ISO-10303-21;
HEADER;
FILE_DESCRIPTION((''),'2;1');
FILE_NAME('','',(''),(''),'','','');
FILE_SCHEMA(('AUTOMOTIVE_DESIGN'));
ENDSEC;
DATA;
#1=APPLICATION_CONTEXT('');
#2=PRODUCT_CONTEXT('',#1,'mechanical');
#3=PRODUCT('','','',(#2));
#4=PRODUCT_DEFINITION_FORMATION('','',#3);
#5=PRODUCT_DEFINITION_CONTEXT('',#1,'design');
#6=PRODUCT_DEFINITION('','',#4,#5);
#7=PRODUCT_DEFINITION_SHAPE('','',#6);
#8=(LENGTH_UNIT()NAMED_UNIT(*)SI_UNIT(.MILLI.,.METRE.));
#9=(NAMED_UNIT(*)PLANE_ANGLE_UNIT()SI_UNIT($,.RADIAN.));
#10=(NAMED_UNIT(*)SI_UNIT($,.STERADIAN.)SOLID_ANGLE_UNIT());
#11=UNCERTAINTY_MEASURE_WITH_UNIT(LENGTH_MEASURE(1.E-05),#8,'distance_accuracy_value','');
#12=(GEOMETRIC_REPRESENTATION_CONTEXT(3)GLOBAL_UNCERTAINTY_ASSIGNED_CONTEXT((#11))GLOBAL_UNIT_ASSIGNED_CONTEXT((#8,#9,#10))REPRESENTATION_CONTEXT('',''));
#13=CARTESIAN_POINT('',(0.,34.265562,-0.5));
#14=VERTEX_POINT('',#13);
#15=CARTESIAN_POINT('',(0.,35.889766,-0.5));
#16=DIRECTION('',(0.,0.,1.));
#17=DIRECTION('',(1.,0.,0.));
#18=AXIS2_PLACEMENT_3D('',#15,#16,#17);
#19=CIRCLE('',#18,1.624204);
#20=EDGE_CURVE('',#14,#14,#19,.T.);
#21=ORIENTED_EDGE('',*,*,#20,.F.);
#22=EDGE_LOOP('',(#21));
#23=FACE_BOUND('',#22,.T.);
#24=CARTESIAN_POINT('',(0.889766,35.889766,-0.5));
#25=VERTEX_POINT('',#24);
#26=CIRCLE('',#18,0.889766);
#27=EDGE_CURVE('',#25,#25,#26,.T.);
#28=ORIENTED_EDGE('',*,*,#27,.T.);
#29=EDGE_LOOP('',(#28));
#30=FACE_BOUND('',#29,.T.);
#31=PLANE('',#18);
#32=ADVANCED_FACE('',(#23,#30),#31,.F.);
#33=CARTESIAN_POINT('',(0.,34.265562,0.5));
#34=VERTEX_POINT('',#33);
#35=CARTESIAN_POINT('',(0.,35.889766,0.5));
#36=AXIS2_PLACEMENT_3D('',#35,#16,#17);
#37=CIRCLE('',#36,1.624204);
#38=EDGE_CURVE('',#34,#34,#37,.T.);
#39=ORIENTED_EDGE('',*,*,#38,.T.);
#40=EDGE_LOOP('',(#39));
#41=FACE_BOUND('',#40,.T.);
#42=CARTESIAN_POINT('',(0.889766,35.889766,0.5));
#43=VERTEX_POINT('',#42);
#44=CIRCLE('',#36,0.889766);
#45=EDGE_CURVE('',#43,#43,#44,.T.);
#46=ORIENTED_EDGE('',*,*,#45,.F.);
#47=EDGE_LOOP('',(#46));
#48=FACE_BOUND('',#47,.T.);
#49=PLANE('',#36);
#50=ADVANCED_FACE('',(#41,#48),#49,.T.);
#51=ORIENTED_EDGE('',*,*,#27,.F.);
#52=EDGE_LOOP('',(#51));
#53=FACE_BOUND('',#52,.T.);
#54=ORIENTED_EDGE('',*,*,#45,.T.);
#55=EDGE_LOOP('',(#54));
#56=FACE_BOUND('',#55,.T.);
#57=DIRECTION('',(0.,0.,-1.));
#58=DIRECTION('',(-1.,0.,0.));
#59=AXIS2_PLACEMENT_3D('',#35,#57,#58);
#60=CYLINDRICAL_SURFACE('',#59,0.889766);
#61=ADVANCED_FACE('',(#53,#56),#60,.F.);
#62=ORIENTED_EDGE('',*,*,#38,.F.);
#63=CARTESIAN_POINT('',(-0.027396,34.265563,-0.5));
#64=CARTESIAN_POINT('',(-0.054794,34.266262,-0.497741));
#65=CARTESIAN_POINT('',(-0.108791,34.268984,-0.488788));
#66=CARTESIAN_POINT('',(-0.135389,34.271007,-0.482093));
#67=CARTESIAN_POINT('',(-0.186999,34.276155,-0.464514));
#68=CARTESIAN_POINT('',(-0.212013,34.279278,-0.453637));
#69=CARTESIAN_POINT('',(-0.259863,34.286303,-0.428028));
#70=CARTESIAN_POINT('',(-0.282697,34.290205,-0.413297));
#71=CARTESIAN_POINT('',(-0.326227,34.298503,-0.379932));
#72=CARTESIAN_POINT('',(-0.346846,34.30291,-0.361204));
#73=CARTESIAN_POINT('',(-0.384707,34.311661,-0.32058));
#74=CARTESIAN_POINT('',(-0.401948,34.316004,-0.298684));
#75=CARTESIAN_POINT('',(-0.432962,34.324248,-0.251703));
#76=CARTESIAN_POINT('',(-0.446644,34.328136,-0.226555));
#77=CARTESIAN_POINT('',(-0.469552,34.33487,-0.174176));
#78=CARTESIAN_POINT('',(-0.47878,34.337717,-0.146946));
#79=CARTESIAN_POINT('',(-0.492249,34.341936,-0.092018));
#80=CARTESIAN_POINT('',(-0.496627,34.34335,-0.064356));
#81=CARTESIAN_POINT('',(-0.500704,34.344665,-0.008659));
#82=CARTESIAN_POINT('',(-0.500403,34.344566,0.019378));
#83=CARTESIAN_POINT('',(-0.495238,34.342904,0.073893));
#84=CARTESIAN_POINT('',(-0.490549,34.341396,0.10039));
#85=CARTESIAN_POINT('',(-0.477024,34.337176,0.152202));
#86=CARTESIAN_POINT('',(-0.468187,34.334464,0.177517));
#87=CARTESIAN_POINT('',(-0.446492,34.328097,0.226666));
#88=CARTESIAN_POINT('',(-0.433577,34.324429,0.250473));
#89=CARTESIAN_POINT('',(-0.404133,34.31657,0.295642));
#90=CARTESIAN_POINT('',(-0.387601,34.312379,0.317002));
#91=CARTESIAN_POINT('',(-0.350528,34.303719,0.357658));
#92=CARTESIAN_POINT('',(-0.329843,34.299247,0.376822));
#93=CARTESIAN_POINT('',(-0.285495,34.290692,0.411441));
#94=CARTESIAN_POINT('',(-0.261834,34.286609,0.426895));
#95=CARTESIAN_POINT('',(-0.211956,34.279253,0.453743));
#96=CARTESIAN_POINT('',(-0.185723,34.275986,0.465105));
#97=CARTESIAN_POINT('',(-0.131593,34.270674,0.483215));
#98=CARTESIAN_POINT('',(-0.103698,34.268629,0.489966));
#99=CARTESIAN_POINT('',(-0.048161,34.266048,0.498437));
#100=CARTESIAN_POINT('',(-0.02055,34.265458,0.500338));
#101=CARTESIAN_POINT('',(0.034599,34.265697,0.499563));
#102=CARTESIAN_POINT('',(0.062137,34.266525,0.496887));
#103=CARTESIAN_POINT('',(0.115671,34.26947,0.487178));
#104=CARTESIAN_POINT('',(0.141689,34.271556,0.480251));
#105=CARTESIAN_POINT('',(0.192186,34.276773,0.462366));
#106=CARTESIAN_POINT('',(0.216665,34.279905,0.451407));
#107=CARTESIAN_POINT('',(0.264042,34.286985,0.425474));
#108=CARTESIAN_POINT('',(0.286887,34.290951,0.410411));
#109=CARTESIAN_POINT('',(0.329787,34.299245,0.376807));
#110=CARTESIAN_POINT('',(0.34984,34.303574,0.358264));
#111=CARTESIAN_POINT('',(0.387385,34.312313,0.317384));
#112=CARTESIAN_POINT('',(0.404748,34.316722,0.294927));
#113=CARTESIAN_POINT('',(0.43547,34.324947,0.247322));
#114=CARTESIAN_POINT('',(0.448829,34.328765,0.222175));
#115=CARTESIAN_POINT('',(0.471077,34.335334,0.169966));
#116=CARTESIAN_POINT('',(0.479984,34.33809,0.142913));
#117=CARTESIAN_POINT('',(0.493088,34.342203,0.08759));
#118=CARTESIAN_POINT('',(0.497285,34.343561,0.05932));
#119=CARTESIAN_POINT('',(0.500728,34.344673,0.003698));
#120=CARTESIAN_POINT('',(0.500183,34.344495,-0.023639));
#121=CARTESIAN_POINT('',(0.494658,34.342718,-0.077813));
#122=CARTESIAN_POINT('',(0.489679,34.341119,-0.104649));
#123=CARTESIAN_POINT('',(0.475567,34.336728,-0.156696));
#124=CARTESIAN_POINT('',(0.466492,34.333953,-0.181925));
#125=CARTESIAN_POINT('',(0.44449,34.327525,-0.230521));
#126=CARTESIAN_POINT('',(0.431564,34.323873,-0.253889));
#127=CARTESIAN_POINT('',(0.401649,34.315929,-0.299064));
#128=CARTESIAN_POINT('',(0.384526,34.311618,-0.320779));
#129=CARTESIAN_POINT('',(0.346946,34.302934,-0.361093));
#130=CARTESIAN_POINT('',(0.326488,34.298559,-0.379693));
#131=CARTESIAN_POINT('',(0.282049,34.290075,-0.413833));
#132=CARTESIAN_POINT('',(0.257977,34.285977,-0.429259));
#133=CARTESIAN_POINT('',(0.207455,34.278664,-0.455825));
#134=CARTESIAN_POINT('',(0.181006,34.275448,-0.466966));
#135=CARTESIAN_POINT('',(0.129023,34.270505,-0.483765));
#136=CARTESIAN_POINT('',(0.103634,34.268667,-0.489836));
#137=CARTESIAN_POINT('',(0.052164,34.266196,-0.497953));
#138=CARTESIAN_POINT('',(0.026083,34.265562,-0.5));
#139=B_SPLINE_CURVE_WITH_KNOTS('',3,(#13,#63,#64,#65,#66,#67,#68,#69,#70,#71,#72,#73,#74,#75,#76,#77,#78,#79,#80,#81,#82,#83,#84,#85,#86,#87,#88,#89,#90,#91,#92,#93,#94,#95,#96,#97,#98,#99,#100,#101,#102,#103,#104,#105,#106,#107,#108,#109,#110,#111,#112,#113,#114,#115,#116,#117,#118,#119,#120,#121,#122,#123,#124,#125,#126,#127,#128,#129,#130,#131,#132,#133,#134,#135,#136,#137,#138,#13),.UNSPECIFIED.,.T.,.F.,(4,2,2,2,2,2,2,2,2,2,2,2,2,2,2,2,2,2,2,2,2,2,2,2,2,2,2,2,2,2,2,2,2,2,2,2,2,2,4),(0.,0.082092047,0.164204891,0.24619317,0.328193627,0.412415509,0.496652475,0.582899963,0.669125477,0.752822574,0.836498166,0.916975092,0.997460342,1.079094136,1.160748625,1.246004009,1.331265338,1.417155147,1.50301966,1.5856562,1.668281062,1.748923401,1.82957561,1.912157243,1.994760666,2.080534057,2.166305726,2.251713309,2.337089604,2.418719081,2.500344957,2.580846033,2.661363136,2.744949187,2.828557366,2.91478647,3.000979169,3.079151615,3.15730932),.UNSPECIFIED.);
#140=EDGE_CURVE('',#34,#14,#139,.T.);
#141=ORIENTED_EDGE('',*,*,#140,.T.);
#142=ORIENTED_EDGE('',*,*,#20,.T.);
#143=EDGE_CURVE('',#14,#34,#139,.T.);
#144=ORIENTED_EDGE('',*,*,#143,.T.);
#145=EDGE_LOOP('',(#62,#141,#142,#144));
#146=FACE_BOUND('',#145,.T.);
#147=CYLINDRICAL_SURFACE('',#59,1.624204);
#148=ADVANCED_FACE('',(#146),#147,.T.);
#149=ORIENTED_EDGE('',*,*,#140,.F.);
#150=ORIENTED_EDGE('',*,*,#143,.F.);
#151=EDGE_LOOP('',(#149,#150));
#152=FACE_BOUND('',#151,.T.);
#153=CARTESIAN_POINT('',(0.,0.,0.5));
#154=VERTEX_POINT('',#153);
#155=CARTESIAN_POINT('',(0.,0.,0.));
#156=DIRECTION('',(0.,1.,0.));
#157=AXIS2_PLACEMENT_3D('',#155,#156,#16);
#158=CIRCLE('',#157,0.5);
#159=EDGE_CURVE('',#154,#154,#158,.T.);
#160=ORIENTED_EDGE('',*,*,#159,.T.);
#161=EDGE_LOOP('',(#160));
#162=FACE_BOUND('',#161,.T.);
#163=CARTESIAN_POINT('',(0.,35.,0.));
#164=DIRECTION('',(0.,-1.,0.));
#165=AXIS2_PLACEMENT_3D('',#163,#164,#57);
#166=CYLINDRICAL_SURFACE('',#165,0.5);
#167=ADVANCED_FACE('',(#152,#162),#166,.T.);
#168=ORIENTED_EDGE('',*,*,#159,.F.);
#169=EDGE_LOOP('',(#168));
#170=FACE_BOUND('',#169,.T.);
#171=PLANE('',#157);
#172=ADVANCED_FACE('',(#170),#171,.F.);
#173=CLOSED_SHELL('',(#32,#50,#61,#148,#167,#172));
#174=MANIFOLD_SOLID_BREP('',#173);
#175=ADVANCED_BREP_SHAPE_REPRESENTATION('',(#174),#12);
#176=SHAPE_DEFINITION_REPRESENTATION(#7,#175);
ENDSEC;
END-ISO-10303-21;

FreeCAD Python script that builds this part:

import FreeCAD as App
import Part
import Sketcher
Q = App.Units.Quantity

doc = App.newDocument("Part")
body = doc.addObject("PartDesign::Body", "Body")

# Sketch on XZ plane
sketch1 = body.newObject("Sketcher::SketchObject", "Sketch")
sketch1.AttachmentSupport = (doc.getObject("XZ_Plane"), [""])
sketch1.MapMode = "FlatFace"
sketch1.addGeometry(Part.Circle(App.Vector(0, 0, 0), App.Vector(0, 0, 1), 0.5), False)
sketch1.addConstraint(Sketcher.Constraint("Coincident", 0, 3, -1, 1))
sketch1.addConstraint(Sketcher.Constraint("Diameter", 0, Q("1 mm")))
pad1 = body.newObject("PartDesign::Pad", "Pad")
pad1.Profile = sketch1
pad1.Length = 35
pad1.Reversed = True

# Sketch on XY plane
sketch2 = body.newObject("Sketcher::SketchObject", "Sketch001")
sketch2.AttachmentSupport = (doc.getObject("XY_Plane"), [""])
sketch2.MapMode = "FlatFace"
sketch2.addGeometry(Part.Circle(App.Vector(0, 35.9, 0), App.Vector(0, 0, 1), 1.6), False)
sketch2.addGeometry(Part.Circle(App.Vector(0, 35.9, 0), App.Vector(0, 0, 1), 0.9), False)
sketch2.addConstraint(Sketcher.Constraint("Coincident", 1, 3, 0, 3))
sketch2.addConstraint(Sketcher.Constraint("PointOnObject", 0, 3, -2))
sketch2.addConstraint(Sketcher.Constraint("Diameter", 0, Q("3.248407 mm")))
sketch2.addConstraint(Sketcher.Constraint("Diameter", 1, Q("1.779532 mm")))
sketch2.addConstraint(Sketcher.Constraint("DistanceY", -1, 1, 0, 3, Q("35.889766 mm")))
pad2 = body.newObject("PartDesign::Pad", "Pad001")
pad2.Profile = sketch2
pad2.Length = 1
pad2.Midplane = True

doc.recompute()
